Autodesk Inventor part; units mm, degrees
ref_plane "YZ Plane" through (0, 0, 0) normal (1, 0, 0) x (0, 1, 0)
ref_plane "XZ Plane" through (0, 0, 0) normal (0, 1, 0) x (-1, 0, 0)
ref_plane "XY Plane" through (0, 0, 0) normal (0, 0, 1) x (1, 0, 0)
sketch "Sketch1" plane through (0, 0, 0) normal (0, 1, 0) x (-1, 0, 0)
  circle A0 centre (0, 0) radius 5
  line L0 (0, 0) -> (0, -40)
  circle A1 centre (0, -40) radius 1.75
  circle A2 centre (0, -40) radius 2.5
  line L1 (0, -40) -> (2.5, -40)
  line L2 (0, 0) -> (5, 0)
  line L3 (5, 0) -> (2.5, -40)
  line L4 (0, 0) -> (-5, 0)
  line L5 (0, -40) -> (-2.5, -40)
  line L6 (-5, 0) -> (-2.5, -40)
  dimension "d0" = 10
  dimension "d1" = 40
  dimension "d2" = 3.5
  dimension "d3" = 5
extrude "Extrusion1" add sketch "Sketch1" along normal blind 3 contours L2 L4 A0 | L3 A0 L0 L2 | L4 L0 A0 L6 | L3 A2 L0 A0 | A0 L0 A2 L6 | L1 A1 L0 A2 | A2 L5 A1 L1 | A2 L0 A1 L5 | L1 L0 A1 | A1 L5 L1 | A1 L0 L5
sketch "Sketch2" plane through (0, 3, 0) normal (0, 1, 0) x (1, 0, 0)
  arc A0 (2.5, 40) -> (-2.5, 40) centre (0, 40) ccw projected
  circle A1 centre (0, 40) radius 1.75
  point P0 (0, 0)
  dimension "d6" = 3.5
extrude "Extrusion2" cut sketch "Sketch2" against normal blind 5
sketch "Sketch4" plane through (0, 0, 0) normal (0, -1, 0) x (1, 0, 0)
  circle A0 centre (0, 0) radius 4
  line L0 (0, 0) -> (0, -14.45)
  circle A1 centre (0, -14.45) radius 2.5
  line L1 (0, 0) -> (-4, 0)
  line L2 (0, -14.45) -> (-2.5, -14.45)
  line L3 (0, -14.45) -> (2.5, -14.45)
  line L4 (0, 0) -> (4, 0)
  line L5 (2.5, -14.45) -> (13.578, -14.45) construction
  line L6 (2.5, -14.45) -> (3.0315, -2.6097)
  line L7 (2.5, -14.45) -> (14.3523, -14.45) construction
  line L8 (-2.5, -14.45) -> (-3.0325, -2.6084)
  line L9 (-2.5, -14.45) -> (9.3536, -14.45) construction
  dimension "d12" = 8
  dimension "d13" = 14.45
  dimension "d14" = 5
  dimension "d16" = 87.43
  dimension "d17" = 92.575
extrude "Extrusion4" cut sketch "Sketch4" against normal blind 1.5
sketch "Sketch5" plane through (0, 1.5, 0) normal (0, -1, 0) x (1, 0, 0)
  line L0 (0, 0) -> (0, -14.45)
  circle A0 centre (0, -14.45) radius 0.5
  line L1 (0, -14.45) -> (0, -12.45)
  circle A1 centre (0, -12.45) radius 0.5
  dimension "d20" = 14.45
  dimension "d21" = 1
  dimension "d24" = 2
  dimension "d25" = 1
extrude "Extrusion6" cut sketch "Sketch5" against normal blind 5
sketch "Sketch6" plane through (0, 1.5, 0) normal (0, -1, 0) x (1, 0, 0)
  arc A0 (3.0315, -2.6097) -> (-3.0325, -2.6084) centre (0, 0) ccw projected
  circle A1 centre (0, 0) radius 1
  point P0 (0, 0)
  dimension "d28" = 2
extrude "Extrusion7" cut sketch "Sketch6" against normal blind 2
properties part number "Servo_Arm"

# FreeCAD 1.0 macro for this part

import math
import FreeCAD as App
import Part
import Sketcher
from FreeCAD import Vector
Q = App.Units.Quantity

doc = App.newDocument("Part")
body = doc.addObject("PartDesign::Body", "Body")

sketch1 = body.newObject("Sketcher::SketchObject", "Sketch")
sketch1.AttachmentSupport = (doc.getObject("XZ_Plane"), [""])
sketch1.MapMode = "FlatFace"
sketch1.addGeometry([
    Part.ArcOfCircle(Part.Circle(Vector(0, 0, 0), Vector(0, 0, 1), 5), math.radians(0), math.radians(180)),
    Part.LineSegment(Vector(5, 0, 0), Vector(2.5, -40, 0)),
    Part.ArcOfCircle(Part.Circle(Vector(0, -40, 0), Vector(0, 0, 1), 2.5), math.radians(180), math.radians(360)),
    Part.LineSegment(Vector(-2.5, -40, 0), Vector(-5, 0, 0)),
], False)
sketch1.addConstraint([
    Sketcher.Constraint("Coincident", 0, 1, 1, 1),
    Sketcher.Constraint("Coincident", 1, 2, 2, 2),
    Sketcher.Constraint("Coincident", 2, 1, 3, 1),
    Sketcher.Constraint("Coincident", 3, 2, 0, 2),
    Sketcher.Constraint("Coincident", 0, 3, -1, 1),
    Sketcher.Constraint("Symmetric", 1, 2, 2, 1, -2),
    Sketcher.Constraint("PointOnObject", 0, 1, -1),
    Sketcher.Constraint("PointOnObject", 3, 2, -1),
    Sketcher.Constraint("Horizontal", 2, 3, 1, 2),
    Sketcher.Constraint("Radius", 0, 5.0),
    Sketcher.Constraint("Radius", 2, 2.5),
    Sketcher.Constraint("DistanceY", 2, 3, -1, 1, 40.0),
])
pad1 = body.newObject("PartDesign::Pad", "Pad")
pad1.Profile = sketch1
pad1.Length = 3
pad1.Reversed = True

sketch2 = body.newObject("Sketcher::SketchObject", "Sketch001")
sketch2.AttachmentSupport = (doc.getObject("XZ_Plane"), [""])
sketch2.MapMode = "FlatFace"
sketch2.AttachmentOffset = App.Placement(Vector(0, 0, -3), App.Rotation())
sketch2.addGeometry(Part.Circle(Vector(0, -40, 0), Vector(0, 0, 1), 1.8), False)
sketch2.addConstraint([
    Sketcher.Constraint("PointOnObject", 0, 3, -2),
    Sketcher.Constraint("Diameter", 0, 3.5),
    Sketcher.Constraint("DistanceY", 0, 3, -1, 1, 40.0),
])
pocket1 = body.newObject("PartDesign::Pocket", "Pocket")
pocket1.Profile = sketch2
pocket1.Length = 5
pocket1.Reversed = True

sketch3 = body.newObject("Sketcher::SketchObject", "Sketch002")
sketch3.AttachmentSupport = (doc.getObject("XZ_Plane"), [""])
sketch3.MapMode = "FlatFace"
sketch3.addGeometry([
    Part.LineSegment(Vector(-3, -2.6, 0), Vector(-2.5, -14.4, 0)),
    Part.ArcOfCircle(Part.Circle(Vector(0, -14.4, 0), Vector(0, 0, 1), 2.5), math.radians(180), math.radians(360)),
    Part.LineSegment(Vector(2.5, -14.4, 0), Vector(3, -2.6, 0)),
    Part.ArcOfCircle(Part.Circle(Vector(0, 0, 0), Vector(0, 0, 1), 4), math.radians(-41), math.radians(221)),
], False)
sketch3.addConstraint([
    Sketcher.Constraint("Coincident", 0, 2, 1, 1),
    Sketcher.Constraint("Coincident", 1, 2, 2, 1),
    Sketcher.Constraint("Coincident", 2, 2, 3, 1),
    Sketcher.Constraint("Coincident", 3, 2, 0, 1),
    Sketcher.Constraint("Coincident", 3, 3, -1, 1),
    Sketcher.Constraint("Symmetric", 0, 2, 1, 2, -2),
    Sketcher.Constraint("Horizontal", 1, 3, 0, 2),
    Sketcher.Constraint("Radius", 3, 4.0),
    Sketcher.Constraint("Radius", 1, 2.5),
    Sketcher.Constraint("Angle", 2, Q("87.4298 deg")),
    Sketcher.Constraint("DistanceY", 1, 3, -1, 1, 14.45),
    Sketcher.Constraint("DistanceX", 3, 2, 2, 2, 6.064),
])
pocket2 = body.newObject("PartDesign::Pocket", "Pocket001")
pocket2.Profile = sketch3
pocket2.Length = 1.5

sketch4 = body.newObject("Sketcher::SketchObject", "Sketch003")
sketch4.AttachmentSupport = (doc.getObject("XZ_Plane"), [""])
sketch4.MapMode = "FlatFace"
sketch4.AttachmentOffset = App.Placement(Vector(0, 0, -1.5), App.Rotation())
sketch4.addGeometry([
    Part.Circle(Vector(0, -12.4, 0), Vector(0, 0, 1), 0.5),
    Part.Circle(Vector(0, -14.4, 0), Vector(0, 0, 1), 0.5),
], False)
sketch4.addConstraint([
    Sketcher.Constraint("Equal", 0, 1),
    Sketcher.Constraint("PointOnObject", 0, 3, -2),
    Sketcher.Constraint("PointOnObject", 1, 3, -2),
    Sketcher.Constraint("Diameter", 0, 1.0),
    Sketcher.Constraint("DistanceY", 1, 3, 0, 3, 2.0),
    Sketcher.Constraint("DistanceY", 1, 3, -1, 1, 14.45),
])
pocket3 = body.newObject("PartDesign::Pocket", "Pocket002")
pocket3.Profile = sketch4
pocket3.Length = 5

sketch5 = body.newObject("Sketcher::SketchObject", "Sketch004")
sketch5.AttachmentSupport = (doc.getObject("XZ_Plane"), [""])
sketch5.MapMode = "FlatFace"
sketch5.AttachmentOffset = App.Placement(Vector(0, 0, -1.5), App.Rotation())
sketch5.addGeometry(Part.Circle(Vector(0, 0, 0), Vector(0, 0, 1), 1), False)
sketch5.addConstraint([
    Sketcher.Constraint("Coincident", 0, 3, -1, 1),
    Sketcher.Constraint("Diameter", 0, 2.0),
])
pocket4 = body.newObject("PartDesign::Pocket", "Pocket003")
pocket4.Profile = sketch5
pocket4.Length = 2

doc.recompute()
